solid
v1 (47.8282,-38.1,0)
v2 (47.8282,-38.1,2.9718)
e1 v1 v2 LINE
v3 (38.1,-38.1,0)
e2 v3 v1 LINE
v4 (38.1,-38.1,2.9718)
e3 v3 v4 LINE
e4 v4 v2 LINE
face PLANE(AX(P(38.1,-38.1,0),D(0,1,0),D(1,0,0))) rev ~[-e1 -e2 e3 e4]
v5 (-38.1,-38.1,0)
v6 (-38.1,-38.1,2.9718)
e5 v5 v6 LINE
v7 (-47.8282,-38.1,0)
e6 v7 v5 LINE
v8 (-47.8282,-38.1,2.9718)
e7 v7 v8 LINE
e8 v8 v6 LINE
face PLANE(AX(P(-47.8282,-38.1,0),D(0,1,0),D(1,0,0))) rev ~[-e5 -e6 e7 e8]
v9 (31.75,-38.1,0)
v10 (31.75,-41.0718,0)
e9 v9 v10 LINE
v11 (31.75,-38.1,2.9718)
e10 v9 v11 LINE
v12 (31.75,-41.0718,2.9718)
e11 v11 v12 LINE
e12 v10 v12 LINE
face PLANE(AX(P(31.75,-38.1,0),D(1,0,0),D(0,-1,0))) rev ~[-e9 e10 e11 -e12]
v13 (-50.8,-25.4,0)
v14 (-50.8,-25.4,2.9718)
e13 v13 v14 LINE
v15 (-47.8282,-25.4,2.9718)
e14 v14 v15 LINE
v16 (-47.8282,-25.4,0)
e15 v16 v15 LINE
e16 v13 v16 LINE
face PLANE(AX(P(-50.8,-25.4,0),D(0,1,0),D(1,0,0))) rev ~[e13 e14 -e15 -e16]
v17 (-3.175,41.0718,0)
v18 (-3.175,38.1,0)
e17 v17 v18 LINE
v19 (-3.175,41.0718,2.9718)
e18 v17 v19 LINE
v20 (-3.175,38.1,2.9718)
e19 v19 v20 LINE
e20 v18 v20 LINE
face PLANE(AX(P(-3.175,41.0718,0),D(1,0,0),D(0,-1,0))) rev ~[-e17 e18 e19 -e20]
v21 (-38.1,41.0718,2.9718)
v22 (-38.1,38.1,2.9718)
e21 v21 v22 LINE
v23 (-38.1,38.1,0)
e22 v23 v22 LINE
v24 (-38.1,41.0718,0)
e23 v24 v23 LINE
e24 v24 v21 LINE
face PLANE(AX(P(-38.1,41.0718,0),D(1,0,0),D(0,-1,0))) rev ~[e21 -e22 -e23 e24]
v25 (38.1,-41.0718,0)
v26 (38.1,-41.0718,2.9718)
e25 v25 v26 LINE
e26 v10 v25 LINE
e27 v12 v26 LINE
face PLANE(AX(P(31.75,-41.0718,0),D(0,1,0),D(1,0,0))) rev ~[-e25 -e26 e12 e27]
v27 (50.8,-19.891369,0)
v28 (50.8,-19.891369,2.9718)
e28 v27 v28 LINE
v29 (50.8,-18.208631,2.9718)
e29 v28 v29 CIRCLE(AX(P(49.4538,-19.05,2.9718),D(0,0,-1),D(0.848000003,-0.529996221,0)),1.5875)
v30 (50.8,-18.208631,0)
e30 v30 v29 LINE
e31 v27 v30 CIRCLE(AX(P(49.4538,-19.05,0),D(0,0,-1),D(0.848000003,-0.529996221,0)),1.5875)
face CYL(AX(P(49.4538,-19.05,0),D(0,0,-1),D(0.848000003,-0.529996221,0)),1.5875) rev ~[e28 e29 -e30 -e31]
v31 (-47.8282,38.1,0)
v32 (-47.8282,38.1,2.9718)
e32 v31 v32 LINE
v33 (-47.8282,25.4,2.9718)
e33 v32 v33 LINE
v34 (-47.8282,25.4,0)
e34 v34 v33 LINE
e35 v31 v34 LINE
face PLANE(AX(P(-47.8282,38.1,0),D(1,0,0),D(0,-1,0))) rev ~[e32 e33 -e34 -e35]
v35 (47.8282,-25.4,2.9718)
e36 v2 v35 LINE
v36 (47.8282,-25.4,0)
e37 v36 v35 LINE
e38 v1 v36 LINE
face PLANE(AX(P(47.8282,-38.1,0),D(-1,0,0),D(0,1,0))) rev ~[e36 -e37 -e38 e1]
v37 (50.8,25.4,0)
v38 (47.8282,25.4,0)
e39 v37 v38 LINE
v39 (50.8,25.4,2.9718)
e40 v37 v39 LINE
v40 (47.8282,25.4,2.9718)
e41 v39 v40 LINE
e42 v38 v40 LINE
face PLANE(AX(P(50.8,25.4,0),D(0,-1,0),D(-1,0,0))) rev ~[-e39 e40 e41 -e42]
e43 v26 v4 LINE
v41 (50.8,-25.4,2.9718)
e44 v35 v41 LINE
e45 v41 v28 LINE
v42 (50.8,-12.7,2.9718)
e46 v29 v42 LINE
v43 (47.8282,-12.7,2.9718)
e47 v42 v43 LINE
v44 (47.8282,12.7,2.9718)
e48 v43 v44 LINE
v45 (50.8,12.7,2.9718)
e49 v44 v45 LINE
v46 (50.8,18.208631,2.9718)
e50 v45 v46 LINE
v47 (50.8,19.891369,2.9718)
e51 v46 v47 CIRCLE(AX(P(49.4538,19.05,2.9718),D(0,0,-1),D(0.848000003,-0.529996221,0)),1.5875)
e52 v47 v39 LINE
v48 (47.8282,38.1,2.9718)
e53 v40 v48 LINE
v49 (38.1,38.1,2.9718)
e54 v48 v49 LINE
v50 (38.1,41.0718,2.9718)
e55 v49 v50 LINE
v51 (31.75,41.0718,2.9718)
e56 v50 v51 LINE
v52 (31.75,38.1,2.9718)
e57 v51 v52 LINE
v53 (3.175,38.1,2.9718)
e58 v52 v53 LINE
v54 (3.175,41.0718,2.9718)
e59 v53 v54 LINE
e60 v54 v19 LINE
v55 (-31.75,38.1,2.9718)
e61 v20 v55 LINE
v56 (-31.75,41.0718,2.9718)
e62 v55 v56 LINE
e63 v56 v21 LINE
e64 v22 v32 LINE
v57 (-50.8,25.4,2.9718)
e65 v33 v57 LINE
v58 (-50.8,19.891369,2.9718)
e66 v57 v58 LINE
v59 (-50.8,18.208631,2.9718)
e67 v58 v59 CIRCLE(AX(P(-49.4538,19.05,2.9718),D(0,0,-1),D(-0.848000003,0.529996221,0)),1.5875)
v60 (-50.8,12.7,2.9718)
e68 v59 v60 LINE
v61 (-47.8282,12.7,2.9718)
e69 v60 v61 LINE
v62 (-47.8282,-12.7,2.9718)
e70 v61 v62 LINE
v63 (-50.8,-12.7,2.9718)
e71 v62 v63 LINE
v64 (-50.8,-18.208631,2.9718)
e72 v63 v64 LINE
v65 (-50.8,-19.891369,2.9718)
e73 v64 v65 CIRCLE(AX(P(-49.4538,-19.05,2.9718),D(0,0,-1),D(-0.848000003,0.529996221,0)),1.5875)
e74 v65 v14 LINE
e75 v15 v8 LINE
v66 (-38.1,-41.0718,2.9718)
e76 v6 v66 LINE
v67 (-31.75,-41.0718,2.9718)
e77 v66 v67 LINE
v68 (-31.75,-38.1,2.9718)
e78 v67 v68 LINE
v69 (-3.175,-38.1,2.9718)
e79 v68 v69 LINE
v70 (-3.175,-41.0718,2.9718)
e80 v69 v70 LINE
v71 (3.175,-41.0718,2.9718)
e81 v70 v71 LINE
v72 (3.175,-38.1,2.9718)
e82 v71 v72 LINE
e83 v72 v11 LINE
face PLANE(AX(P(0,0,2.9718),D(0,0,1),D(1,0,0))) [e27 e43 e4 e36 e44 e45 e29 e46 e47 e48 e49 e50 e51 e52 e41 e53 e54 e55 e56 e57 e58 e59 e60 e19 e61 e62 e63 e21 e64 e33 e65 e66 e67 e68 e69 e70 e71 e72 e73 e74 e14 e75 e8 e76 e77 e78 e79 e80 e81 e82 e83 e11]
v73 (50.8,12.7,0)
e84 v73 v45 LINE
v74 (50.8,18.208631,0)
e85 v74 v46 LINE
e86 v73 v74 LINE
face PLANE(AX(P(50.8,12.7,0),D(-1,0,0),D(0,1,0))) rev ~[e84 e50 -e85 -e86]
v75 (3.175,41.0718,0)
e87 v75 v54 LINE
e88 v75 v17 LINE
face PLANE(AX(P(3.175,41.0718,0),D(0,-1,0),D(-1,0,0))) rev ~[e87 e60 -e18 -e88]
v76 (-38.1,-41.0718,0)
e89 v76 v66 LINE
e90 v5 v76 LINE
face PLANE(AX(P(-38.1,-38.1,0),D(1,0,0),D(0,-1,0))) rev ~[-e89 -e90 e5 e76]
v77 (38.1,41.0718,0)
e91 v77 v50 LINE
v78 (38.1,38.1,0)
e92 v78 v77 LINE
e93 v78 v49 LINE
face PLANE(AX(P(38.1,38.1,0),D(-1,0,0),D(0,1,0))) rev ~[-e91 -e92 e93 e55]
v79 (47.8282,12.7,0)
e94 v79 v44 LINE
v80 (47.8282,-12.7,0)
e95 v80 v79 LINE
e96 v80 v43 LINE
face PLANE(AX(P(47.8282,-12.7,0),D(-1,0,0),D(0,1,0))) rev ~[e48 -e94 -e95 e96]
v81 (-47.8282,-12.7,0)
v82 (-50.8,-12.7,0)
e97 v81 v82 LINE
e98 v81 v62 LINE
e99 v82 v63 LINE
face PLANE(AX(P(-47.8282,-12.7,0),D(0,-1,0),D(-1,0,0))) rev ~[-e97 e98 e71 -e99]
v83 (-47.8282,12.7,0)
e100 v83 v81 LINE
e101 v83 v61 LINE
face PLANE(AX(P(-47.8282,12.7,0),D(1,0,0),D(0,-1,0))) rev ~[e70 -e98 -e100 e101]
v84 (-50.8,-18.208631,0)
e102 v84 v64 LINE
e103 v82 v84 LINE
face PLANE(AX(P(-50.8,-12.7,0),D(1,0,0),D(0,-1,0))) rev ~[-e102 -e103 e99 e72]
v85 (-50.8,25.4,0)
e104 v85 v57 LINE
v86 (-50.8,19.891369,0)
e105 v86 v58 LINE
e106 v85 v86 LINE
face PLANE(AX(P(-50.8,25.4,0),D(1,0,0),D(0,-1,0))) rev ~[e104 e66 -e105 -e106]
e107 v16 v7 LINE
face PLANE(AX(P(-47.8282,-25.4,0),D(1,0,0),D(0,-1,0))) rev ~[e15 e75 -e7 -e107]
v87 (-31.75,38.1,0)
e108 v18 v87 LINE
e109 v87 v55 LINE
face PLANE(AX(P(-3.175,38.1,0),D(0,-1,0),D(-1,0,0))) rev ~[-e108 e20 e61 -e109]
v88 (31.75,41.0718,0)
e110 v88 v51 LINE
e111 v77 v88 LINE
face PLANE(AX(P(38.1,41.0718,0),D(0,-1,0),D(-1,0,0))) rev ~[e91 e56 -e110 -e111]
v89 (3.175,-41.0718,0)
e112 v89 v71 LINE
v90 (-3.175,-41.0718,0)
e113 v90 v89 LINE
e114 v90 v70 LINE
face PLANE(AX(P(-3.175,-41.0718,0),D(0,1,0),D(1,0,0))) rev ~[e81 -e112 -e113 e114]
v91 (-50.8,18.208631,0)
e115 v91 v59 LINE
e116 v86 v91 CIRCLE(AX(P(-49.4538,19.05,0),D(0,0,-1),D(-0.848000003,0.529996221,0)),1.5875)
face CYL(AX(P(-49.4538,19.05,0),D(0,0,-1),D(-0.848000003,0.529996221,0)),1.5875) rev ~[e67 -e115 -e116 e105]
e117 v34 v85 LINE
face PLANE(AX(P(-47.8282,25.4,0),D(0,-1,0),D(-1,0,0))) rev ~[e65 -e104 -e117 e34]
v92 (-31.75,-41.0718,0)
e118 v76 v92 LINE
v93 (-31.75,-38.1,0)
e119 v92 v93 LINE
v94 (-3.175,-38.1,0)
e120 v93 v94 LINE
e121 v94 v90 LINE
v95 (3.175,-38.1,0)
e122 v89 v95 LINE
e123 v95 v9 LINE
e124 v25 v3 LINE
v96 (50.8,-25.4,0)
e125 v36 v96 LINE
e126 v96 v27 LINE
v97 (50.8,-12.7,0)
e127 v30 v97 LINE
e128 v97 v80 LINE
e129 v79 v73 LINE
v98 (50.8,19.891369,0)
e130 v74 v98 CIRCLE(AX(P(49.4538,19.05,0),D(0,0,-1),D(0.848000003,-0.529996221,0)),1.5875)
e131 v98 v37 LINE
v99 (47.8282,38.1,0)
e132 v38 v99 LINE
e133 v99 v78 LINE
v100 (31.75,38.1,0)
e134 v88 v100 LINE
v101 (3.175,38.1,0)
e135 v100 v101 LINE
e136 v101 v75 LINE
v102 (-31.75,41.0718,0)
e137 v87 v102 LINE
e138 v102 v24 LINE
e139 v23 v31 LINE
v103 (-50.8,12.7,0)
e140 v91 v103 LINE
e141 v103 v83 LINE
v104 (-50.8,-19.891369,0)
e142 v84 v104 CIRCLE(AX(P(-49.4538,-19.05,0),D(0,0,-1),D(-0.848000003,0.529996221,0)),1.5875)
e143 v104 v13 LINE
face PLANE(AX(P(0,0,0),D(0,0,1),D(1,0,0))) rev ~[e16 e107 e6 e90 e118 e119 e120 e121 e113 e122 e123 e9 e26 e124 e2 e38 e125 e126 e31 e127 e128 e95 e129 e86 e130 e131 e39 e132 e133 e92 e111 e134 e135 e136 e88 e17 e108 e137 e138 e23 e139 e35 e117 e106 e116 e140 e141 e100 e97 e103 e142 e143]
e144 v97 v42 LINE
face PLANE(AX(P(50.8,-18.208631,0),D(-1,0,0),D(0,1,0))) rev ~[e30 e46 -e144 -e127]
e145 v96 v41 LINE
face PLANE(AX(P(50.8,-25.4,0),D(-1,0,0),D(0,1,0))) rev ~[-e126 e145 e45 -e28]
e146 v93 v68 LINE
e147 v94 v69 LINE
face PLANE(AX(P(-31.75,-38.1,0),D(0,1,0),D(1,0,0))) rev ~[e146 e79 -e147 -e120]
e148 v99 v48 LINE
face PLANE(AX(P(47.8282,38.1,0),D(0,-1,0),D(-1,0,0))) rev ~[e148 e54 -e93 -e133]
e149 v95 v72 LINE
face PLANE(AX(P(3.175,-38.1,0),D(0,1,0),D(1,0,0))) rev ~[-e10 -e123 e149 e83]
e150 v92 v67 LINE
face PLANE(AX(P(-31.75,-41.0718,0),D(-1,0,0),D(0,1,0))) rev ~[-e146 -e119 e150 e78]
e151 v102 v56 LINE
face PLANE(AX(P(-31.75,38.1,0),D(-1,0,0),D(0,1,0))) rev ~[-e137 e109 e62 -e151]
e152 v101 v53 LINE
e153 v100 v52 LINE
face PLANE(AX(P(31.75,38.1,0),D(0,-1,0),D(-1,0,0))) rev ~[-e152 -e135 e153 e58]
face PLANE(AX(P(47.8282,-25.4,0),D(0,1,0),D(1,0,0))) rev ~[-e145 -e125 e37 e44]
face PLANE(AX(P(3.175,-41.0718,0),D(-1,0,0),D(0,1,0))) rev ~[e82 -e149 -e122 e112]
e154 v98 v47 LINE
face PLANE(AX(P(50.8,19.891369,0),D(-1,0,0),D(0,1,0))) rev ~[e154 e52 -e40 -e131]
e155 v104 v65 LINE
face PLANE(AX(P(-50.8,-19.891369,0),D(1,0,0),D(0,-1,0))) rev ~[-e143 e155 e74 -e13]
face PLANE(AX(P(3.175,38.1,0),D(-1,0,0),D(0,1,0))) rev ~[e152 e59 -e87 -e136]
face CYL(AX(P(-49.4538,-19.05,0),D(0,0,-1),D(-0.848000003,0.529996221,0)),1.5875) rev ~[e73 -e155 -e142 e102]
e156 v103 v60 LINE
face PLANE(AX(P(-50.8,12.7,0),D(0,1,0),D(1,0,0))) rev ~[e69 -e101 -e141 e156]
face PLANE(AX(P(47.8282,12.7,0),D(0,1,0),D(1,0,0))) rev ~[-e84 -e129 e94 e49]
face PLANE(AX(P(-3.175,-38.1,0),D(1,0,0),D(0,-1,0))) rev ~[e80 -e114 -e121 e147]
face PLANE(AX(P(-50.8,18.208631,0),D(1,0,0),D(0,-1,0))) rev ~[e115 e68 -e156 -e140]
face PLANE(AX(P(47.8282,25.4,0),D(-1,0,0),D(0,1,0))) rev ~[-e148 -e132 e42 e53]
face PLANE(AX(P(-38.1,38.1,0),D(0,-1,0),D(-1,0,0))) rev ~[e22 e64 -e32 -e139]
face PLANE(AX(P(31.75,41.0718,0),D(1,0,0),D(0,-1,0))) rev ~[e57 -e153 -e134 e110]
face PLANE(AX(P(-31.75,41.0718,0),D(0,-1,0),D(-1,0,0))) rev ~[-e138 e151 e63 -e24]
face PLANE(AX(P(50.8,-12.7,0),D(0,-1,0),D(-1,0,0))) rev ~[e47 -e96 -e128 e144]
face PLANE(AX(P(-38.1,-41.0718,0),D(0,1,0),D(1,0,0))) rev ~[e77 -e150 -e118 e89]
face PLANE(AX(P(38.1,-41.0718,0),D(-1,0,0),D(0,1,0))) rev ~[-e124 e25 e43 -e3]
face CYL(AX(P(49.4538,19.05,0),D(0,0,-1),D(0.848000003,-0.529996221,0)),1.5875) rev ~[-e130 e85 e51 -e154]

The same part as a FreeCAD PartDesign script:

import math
import FreeCAD as App
import Part
import Sketcher
from FreeCAD import Vector
Q = App.Units.Quantity

doc = App.newDocument("Part")
body = doc.addObject("PartDesign::Body", "Body")

# Sketch on XY plane
sketch1 = body.newObject("Sketcher::SketchObject", "Sketch")
sketch1.AttachmentSupport = (doc.getObject("XY_Plane"), [""])
sketch1.MapMode = "FlatFace"
sketch1.addGeometry([
    Part.LineSegment(Vector(47.8282, 25.4, 0), Vector(47.8282, 38.1, 0)),  # 0
    Part.LineSegment(Vector(47.8282, 38.1, 0), Vector(38.1, 38.1, 0)),  # 1
    Part.LineSegment(Vector(38.1, 38.1, 0), Vector(38.1, 41.0718, 0)),  # 2
    Part.LineSegment(Vector(38.1, 41.0718, 0), Vector(31.75, 41.0718, 0)),  # 3
    Part.LineSegment(Vector(31.75, 41.0718, 0), Vector(31.75, 38.1, 0)),  # 4
    Part.LineSegment(Vector(31.75, 38.1, 0), Vector(3.175, 38.1, 0)),  # 5
    Part.LineSegment(Vector(3.175, 38.1, 0), Vector(3.175, 41.0718, 0)),  # 6
    Part.LineSegment(Vector(3.175, 41.0718, 0), Vector(-3.175, 41.0718, 0)),  # 7
    Part.LineSegment(Vector(-3.175, 41.0718, 0), Vector(-3.175, 38.1, 0)),  # 8
    Part.LineSegment(Vector(-3.175, 38.1, 0), Vector(-31.75, 38.1, 0)),  # 9
    Part.LineSegment(Vector(-31.75, 38.1, 0), Vector(-31.75, 41.0718, 0)),  # 10
    Part.LineSegment(Vector(-31.75, 41.0718, 0), Vector(-38.1, 41.0718, 0)),  # 11
    Part.LineSegment(Vector(-38.1, 41.0718, 0), Vector(-38.1, 38.1, 0)),  # 12
    Part.LineSegment(Vector(-38.1, 38.1, 0), Vector(-47.8282, 38.1, 0)),  # 13
    Part.LineSegment(Vector(-47.8282, 38.1, 0), Vector(-47.8282, 25.4, 0)),  # 14
    Part.LineSegment(Vector(-47.8282, 25.4, 0), Vector(-50.8, 25.4, 0)),  # 15
    Part.LineSegment(Vector(-50.8, 25.4, 0), Vector(-50.8, 19.891369, 0)),  # 16
    Part.ArcOfCircle(Part.Circle(Vector(-49.4538, 19.05, 0), Vector(0, 0, 1), 1.5875), math.radians(-147.9948), math.radians(147.9948)),  # 17
    Part.LineSegment(Vector(-50.8, 18.208631, 0), Vector(-50.8, 12.7, 0)),  # 18
    Part.LineSegment(Vector(-50.8, 12.7, 0), Vector(-47.8282, 12.7, 0)),  # 19
    Part.LineSegment(Vector(-47.8282, 12.7, 0), Vector(-47.8282, -12.7, 0)),  # 20
    Part.LineSegment(Vector(-47.8282, -12.7, 0), Vector(-50.8, -12.7, 0)),  # 21
    Part.LineSegment(Vector(-50.8, -12.7, 0), Vector(-50.8, -18.208631, 0)),  # 22
    Part.ArcOfCircle(Part.Circle(Vector(-49.4538, -19.05, 0), Vector(0, 0, 1), 1.5875), math.radians(-147.9948), math.radians(147.9948)),  # 23
    Part.LineSegment(Vector(-50.8, -19.891369, 0), Vector(-50.8, -25.4, 0)),  # 24
    Part.LineSegment(Vector(-50.8, -25.4, 0), Vector(-47.8282, -25.4, 0)),  # 25
    Part.LineSegment(Vector(-47.8282, -25.4, 0), Vector(-47.8282, -38.1, 0)),  # 26
    Part.LineSegment(Vector(-47.8282, -38.1, 0), Vector(-38.1, -38.1, 0)),  # 27
    Part.LineSegment(Vector(-38.1, -38.1, 0), Vector(-38.1, -41.0718, 0)),  # 28
    Part.LineSegment(Vector(-38.1, -41.0718, 0), Vector(-31.75, -41.0718, 0)),  # 29
    Part.LineSegment(Vector(-31.75, -41.0718, 0), Vector(-31.75, -38.1, 0)),  # 30
    Part.LineSegment(Vector(-31.75, -38.1, 0), Vector(-3.175, -38.1, 0)),  # 31
    Part.LineSegment(Vector(-3.175, -38.1, 0), Vector(-3.175, -41.0718, 0)),  # 32
    Part.LineSegment(Vector(-3.175, -41.0718, 0), Vector(3.175, -41.0718, 0)),  # 33
    Part.LineSegment(Vector(3.175, -41.0718, 0), Vector(3.175, -38.1, 0)),  # 34
    Part.LineSegment(Vector(3.175, -38.1, 0), Vector(31.75, -38.1, 0)),  # 35
    Part.LineSegment(Vector(31.75, -38.1, 0), Vector(31.75, -41.0718, 0)),  # 36
    Part.LineSegment(Vector(31.75, -41.0718, 0), Vector(38.1, -41.0718, 0)),  # 37
    Part.LineSegment(Vector(38.1, -41.0718, 0), Vector(38.1, -38.1, 0)),  # 38
    Part.LineSegment(Vector(38.1, -38.1, 0), Vector(47.8282, -38.1, 0)),  # 39
    Part.LineSegment(Vector(47.8282, -38.1, 0), Vector(47.8282, -25.4, 0)),  # 40
    Part.LineSegment(Vector(47.8282, -25.4, 0), Vector(50.8, -25.4, 0)),  # 41
    Part.LineSegment(Vector(50.8, -25.4, 0), Vector(50.8, -19.891369, 0)),  # 42
    Part.ArcOfCircle(Part.Circle(Vector(49.4538, -19.05, 0), Vector(0, 0, 1), 1.5875), math.radians(32.0052), math.radians(327.9948)),  # 43
    Part.LineSegment(Vector(50.8, -18.208631, 0), Vector(50.8, -12.7, 0)),  # 44
    Part.LineSegment(Vector(50.8, -12.7, 0), Vector(47.8282, -12.7, 0)),  # 45
    Part.LineSegment(Vector(47.8282, -12.7, 0), Vector(47.8282, 12.7, 0)),  # 46
    Part.LineSegment(Vector(47.8282, 12.7, 0), Vector(50.8, 12.7, 0)),  # 47
    Part.LineSegment(Vector(50.8, 12.7, 0), Vector(50.8, 18.208631, 0)),  # 48
    Part.ArcOfCircle(Part.Circle(Vector(49.4538, 19.05, 0), Vector(0, 0, 1), 1.5875), math.radians(32.0052), math.radians(327.9948)),  # 49
    Part.LineSegment(Vector(50.8, 19.891369, 0), Vector(50.8, 25.4, 0)),  # 50
    Part.LineSegment(Vector(50.8, 25.4, 0), Vector(47.8282, 25.4, 0)),  # 51
], False)
sketch1.addConstraint([
    Sketcher.Constraint("Coincident", 0, 2, 1, 1),
    Sketcher.Constraint("Coincident", 1, 2, 2, 1),
    Sketcher.Constraint("Coincident", 2, 2, 3, 1),
    Sketcher.Constraint("Coincident", 3, 2, 4, 1),
    Sketcher.Constraint("Coincident", 4, 2, 5, 1),
    Sketcher.Constraint("Coincident", 5, 2, 6, 1),
    Sketcher.Constraint("Coincident", 6, 2, 7, 1),
    Sketcher.Constraint("Coincident", 7, 2, 8, 1),
    Sketcher.Constraint("Coincident", 8, 2, 9, 1),
    Sketcher.Constraint("Coincident", 9, 2, 10, 1),
    Sketcher.Constraint("Coincident", 10, 2, 11, 1),
    Sketcher.Constraint("Coincident", 11, 2, 12, 1),
    Sketcher.Constraint("Coincident", 12, 2, 13, 1),
    Sketcher.Constraint("Coincident", 13, 2, 14, 1),
    Sketcher.Constraint("Coincident", 14, 2, 15, 1),
    Sketcher.Constraint("Coincident", 15, 2, 16, 1),
    Sketcher.Constraint("Coincident", 16, 2, 17, 2),
    Sketcher.Constraint("Coincident", 17, 1, 18, 1),
    Sketcher.Constraint("Coincident", 18, 2, 19, 1),
    Sketcher.Constraint("Coincident", 19, 2, 20, 1),
    Sketcher.Constraint("Coincident", 20, 2, 21, 1),
    Sketcher.Constraint("Coincident", 21, 2, 22, 1),
    Sketcher.Constraint("Coincident", 22, 2, 23, 2),
    Sketcher.Constraint("Coincident", 23, 1, 24, 1),
    Sketcher.Constraint("Coincident", 24, 2, 25, 1),
    Sketcher.Constraint("Coincident", 25, 2, 26, 1),
    Sketcher.Constraint("Coincident", 26, 2, 27, 1),
    Sketcher.Constraint("Coincident", 27, 2, 28, 1),
    Sketcher.Constraint("Coincident", 28, 2, 29, 1),
    Sketcher.Constraint("Coincident", 29, 2, 30, 1),
    Sketcher.Constraint("Coincident", 30, 2, 31, 1),
    Sketcher.Constraint("Coincident", 31, 2, 32, 1),
    Sketcher.Constraint("Coincident", 32, 2, 33, 1),
    Sketcher.Constraint("Coincident", 33, 2, 34, 1),
    Sketcher.Constraint("Coincident", 34, 2, 35, 1),
    Sketcher.Constraint("Coincident", 35, 2, 36, 1),
    Sketcher.Constraint("Coincident", 36, 2, 37, 1),
    Sketcher.Constraint("Coincident", 37, 2, 38, 1),
    Sketcher.Constraint("Coincident", 38, 2, 39, 1),
    Sketcher.Constraint("Coincident", 39, 2, 40, 1),
    Sketcher.Constraint("Coincident", 40, 2, 41, 1),
    Sketcher.Constraint("Coincident", 41, 2, 42, 1),
    Sketcher.Constraint("Coincident", 42, 2, 43, 2),
    Sketcher.Constraint("Coincident", 43, 1, 44, 1),
    Sketcher.Constraint("Coincident", 44, 2, 45, 1),
    Sketcher.Constraint("Coincident", 45, 2, 46, 1),
    Sketcher.Constraint("Coincident", 46, 2, 47, 1),
    Sketcher.Constraint("Coincident", 47, 2, 48, 1),
    Sketcher.Constraint("Coincident", 48, 2, 49, 2),
    Sketcher.Constraint("Coincident", 49, 1, 50, 1),
    Sketcher.Constraint("Coincident", 50, 2, 51, 1),
    Sketcher.Constraint("Coincident", 51, 2, 0, 1),
    Sketcher.Constraint("Vertical", 0),
    Sketcher.Constraint("Horizontal", 1),
    Sketcher.Constraint("Vertical", 2),
    Sketcher.Constraint("Horizontal", 3),
    Sketcher.Constraint("Vertical", 4),
    Sketcher.Constraint("Horizontal", 5),
    Sketcher.Constraint("Vertical", 6),
    Sketcher.Constraint("Horizontal", 7),
    Sketcher.Constraint("Vertical", 8),
    Sketcher.Constraint("Horizontal", 9),
    Sketcher.Constraint("Vertical", 10),
    Sketcher.Constraint("Horizontal", 11),
    Sketcher.Constraint("Vertical", 12),
    Sketcher.Constraint("Horizontal", 13),
    Sketcher.Constraint("Vertical", 14),
    Sketcher.Constraint("Horizontal", 15),
    Sketcher.Constraint("Vertical", 16),
    Sketcher.Constraint("Vertical", 18),
    Sketcher.Constraint("Horizontal", 19),
    Sketcher.Constraint("Vertical", 20),
    Sketcher.Constraint("Horizontal", 21),
    Sketcher.Constraint("Vertical", 22),
    Sketcher.Constraint("Vertical", 24),
    Sketcher.Constraint("Horizontal", 25),
    Sketcher.Constraint("Vertical", 26),
    Sketcher.Constraint("Horizontal", 27),
    Sketcher.Constraint("Vertical", 28),
    Sketcher.Constraint("Horizontal", 29),
    Sketcher.Constraint("Vertical", 30),
    Sketcher.Constraint("Horizontal", 31),
    Sketcher.Constraint("Vertical", 32),
    Sketcher.Constraint("Horizontal", 33),
    Sketcher.Constraint("Vertical", 34),
    Sketcher.Constraint("Horizontal", 35),
    Sketcher.Constraint("Vertical", 36),
    Sketcher.Constraint("Horizontal", 37),
    Sketcher.Constraint("Vertical", 38),
    Sketcher.Constraint("Horizontal", 39),
    Sketcher.Constraint("Vertical", 40),
    Sketcher.Constraint("Horizontal", 41),
    Sketcher.Constraint("Vertical", 42),
    Sketcher.Constraint("Vertical", 44),
    Sketcher.Constraint("Horizontal", 45),
    Sketcher.Constraint("Vertical", 46),
    Sketcher.Constraint("Horizontal", 47),
    Sketcher.Constraint("Vertical", 48),
    Sketcher.Constraint("Vertical", 50),
    Sketcher.Constraint("Horizontal", 51),
    Sketcher.Constraint("Equal", 17, 23),
    Sketcher.Constraint("Equal", 23, 43),
    Sketcher.Constraint("Equal", 43, 49),
    Sketcher.Constraint("Symmetric", 17, 3, 43, 3, -1, 1),
    Sketcher.Constraint("Symmetric", 23, 3, 49, 3, -1, 1),
    Sketcher.Constraint("Symmetric", 0, 2, 26, 2, -1, 1),
    Sketcher.Constraint("Symmetric", 2, 2, 28, 2, -1, 1),
    Sketcher.Constraint("Symmetric", 4, 2, 30, 2, -1, 1),
    Sketcher.Constraint("Symmetric", 6, 2, 32, 2, -1, 1),
    Sketcher.Constraint("Symmetric", 8, 2, 34, 2, -1, 1),
    Sketcher.Constraint("Symmetric", 10, 2, 36, 2, -1, 1),
    Sketcher.Constraint("Symmetric", 12, 2, 38, 2, -1, 1),
    Sketcher.Constraint("Symmetric", 14, 2, 40, 2, -1, 1),
    Sketcher.Constraint("Symmetric", 18, 2, 44, 2, -1, 1),
    Sketcher.Constraint("Symmetric", 20, 2, 46, 2, -1, 1),
    Sketcher.Constraint("Symmetric", 24, 2, 50, 2, -1, 1),
    Sketcher.Constraint("Symmetric", 23, 3, 43, 3, -2),
    Sketcher.Constraint("Symmetric", 5, 2, 8, 2, -2),
    Sketcher.Constraint("Symmetric", 3, 2, 10, 2, -2),
    Sketcher.Constraint("Symmetric", 1, 2, 12, 2, -2),
    Sketcher.Constraint("Symmetric", 25, 2, 40, 2, -2),
    Sketcher.Constraint("Symmetric", 21, 2, 44, 2, -2),
    Sketcher.Constraint("Horizontal", 1, 2, 4, 2),
    Sketcher.Constraint("Horizontal", 3, 2, 6, 2),
    Sketcher.Constraint("Horizontal", 23, 1, 42, 2),
    Sketcher.Constraint("Horizontal", 17, 1, 48, 2),
    Sketcher.Constraint("Horizontal", 16, 2, 49, 1),
    Sketcher.Constraint("Vertical", 16, 2, 17, 1),
    Sketcher.Constraint("Vertical", 14, 2, 19, 2),
    Sketcher.Constraint("Equal", 3, 7),
    Sketcher.Constraint("Equal", 51, 2),
    Sketcher.Constraint("Equal", 16, 18),
    Sketcher.Constraint("DistanceY", 20, 2, 20, 1, Q("1 in")),
    Sketcher.Constraint("DistanceY", 0, 1, 0, 2, Q("0.5 in")),
    Sketcher.Constraint("DistanceY", -1, 1, 14, 2, Q("1 in")),
    Sketcher.Constraint("DistanceX", 15, 2, -1, 1, Q("2 in")),
    Sketcher.Constraint("Radius", 17, Q("0.0625 in")),
    Sketcher.Constraint("DistanceX", 3, 2, 3, 1, Q("0.25 in")),
    Sketcher.Constraint("DistanceX", -1, 1, 1, 2, Q("1.5 in")),
    Sketcher.Constraint("DistanceX", 1, 2, 1, 1, Q("0.383 in")),
    Sketcher.Constraint("DistanceX", 17, 3, 0, 2, Q("3.83 in")),
])
pad1 = body.newObject("PartDesign::Pad", "Pad")
pad1.Profile = sketch1
pad1.Length = Q("0.117 in")

doc.recompute()
